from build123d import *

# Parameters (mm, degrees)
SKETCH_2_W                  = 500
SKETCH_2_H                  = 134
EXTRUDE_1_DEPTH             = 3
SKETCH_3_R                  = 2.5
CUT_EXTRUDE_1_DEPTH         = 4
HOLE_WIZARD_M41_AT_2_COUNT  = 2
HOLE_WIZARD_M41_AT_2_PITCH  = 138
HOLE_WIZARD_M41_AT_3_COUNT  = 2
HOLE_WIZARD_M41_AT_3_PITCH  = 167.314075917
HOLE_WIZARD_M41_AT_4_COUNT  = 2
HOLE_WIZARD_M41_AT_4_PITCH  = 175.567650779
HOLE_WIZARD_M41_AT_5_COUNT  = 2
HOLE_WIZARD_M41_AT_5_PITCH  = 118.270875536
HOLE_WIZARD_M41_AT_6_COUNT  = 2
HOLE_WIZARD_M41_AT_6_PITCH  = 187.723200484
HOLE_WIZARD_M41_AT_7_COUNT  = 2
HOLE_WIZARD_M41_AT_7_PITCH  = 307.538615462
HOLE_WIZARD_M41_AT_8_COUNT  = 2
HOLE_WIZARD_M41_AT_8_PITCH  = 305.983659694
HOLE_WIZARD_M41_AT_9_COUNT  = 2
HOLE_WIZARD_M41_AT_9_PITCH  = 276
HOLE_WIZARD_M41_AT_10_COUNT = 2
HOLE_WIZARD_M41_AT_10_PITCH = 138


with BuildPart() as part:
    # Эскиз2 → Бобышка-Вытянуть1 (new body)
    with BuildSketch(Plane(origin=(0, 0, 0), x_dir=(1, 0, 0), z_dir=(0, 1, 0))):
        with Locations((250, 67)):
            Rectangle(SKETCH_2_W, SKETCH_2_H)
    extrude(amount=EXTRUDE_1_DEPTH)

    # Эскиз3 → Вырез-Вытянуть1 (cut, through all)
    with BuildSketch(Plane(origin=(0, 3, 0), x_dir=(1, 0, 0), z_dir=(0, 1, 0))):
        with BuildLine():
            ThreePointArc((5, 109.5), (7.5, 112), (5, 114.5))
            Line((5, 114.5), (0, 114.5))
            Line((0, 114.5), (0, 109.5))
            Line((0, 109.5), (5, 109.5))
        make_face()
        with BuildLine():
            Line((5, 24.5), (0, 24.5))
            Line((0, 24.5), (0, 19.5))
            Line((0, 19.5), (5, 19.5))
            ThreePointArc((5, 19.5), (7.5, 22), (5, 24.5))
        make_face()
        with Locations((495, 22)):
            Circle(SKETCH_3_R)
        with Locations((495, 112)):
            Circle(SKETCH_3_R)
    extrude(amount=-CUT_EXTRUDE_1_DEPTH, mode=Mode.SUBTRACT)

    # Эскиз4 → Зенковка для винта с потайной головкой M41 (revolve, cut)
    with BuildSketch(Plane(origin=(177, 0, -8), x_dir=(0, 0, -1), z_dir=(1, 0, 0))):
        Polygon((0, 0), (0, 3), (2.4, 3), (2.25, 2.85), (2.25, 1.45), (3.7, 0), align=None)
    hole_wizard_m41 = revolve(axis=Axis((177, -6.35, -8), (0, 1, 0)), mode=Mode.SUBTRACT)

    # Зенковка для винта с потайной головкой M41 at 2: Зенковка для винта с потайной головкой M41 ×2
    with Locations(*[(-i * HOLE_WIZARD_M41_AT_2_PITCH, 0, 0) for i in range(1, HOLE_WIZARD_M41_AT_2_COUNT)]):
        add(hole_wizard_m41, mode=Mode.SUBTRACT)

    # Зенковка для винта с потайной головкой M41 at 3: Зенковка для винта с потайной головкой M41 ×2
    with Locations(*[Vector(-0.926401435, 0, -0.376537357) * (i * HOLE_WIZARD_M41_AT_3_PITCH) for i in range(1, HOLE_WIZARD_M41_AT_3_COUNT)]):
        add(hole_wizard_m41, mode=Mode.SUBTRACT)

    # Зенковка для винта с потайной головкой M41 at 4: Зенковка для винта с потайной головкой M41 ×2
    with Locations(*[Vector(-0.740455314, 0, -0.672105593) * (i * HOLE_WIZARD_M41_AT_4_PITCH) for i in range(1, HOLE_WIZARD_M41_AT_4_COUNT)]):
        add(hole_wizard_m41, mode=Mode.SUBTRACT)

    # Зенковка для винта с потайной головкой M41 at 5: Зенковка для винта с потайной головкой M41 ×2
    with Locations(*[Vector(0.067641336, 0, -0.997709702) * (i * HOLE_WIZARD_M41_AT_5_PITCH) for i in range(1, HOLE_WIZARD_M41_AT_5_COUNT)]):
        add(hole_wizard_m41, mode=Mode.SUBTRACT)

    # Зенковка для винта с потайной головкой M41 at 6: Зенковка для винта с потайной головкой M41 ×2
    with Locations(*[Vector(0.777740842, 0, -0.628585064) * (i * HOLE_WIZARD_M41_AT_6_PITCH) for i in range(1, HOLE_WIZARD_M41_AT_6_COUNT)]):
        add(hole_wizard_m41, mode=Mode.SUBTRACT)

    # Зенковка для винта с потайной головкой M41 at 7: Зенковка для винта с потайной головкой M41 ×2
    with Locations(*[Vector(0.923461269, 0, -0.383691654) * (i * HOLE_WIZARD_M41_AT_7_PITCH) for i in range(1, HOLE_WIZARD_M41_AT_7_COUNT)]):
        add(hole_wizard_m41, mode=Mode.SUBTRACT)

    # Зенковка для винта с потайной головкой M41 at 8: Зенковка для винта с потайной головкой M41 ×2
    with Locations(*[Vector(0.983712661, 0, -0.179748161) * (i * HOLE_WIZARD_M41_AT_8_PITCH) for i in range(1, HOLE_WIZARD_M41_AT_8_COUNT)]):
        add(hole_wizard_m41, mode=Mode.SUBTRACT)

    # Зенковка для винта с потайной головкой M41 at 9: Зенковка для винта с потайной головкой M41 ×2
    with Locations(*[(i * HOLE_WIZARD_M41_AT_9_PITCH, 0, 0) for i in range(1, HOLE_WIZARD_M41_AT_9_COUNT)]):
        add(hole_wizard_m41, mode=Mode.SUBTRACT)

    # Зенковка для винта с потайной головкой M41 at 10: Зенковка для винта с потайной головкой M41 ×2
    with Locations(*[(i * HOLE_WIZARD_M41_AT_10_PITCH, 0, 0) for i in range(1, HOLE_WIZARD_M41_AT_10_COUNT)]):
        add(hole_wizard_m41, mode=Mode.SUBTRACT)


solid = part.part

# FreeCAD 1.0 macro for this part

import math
import FreeCAD as App
import Part
import Sketcher
Q = App.Units.Quantity


def add_polygon(sketch, points):
    """Adds a closed chain of lines whose ends are joined by coincident constraints."""
    first, n = sketch.GeometryCount, len(points)
    for a, b in zip(points, points[1:] + points[:1]):
        sketch.addGeometry(Part.LineSegment(App.Vector(*a, 0), App.Vector(*b, 0)), False)
    for i in range(n):
        sketch.addConstraint(Sketcher.Constraint("Coincident", first + i, 2, first + (i + 1) % n, 1))

doc = App.newDocument("Part")
body = doc.addObject("PartDesign::Body", "Body")

sketch1 = doc.addObject("Sketcher::SketchObject", "Sketch")
body.addObject(sketch1)
sketch1.AttachmentSupport = (doc.XZ_Plane, [""])
sketch1.MapMode = "FlatFace"
add_polygon(sketch1, [(0, -134), (0, 0), (500, 0), (500, -134)])
sketch1.addConstraint([
    Sketcher.Constraint("Vertical", 0),
    Sketcher.Constraint("Horizontal", 1),
    Sketcher.Constraint("Vertical", 2),
    Sketcher.Constraint("Horizontal", 3),
    Sketcher.Constraint("Coincident", 0, 2, -1, 1),
    Sketcher.Constraint("DistanceX", 1, 1, 1, 2, Q("500 mm")),
    Sketcher.Constraint("DistanceY", 0, 1, 0, 2, Q("134 mm")),
])
pad1 = doc.addObject("PartDesign::Pad", "Pad")
body.addObject(pad1)
pad1.Profile = sketch1
pad1.Length = 3
pad1.Reversed = True

sketch2 = doc.addObject("Sketcher::SketchObject", "Sketch001")
body.addObject(sketch2)
sketch2.AttachmentSupport = (doc.XZ_Plane, [""])
sketch2.MapMode = "FlatFace"
sketch2.AttachmentOffset = App.Placement(App.Vector(0, 0, -3), App.Rotation())
sketch2.addGeometry([
    Part.ArcOfCircle(Part.Circle(App.Vector(5, -112, 0), App.Vector(0, 0, 1), 2.5), math.radians(-90), math.radians(90)),
    Part.LineSegment(App.Vector(5, -114.5, 0), App.Vector(0, -114.5, 0)),
    Part.LineSegment(App.Vector(0, -114.5, 0), App.Vector(0, -109.5, 0)),
    Part.LineSegment(App.Vector(0, -109.5, 0), App.Vector(5, -109.5, 0)),
    Part.LineSegment(App.Vector(5, -24.5, 0), App.Vector(0, -24.5, 0)),
    Part.LineSegment(App.Vector(0, -24.5, 0), App.Vector(0, -19.5, 0)),
    Part.LineSegment(App.Vector(0, -19.5, 0), App.Vector(5, -19.5, 0)),
    Part.ArcOfCircle(Part.Circle(App.Vector(5, -22, 0), App.Vector(0, 0, 1), 2.5), math.radians(-90), math.radians(90)),
    Part.Circle(App.Vector(495, -22, 0), App.Vector(0, 0, 1), 2.5),
    Part.Circle(App.Vector(495, -112, 0), App.Vector(0, 0, 1), 2.5),
], False)
sketch2.addConstraint([
    Sketcher.Constraint("Tangent", 0, 1, 1, 1),
    Sketcher.Constraint("Coincident", 1, 2, 2, 1),
    Sketcher.Constraint("Coincident", 2, 2, 3, 1),
    Sketcher.Constraint("Tangent", 3, 2, 0, 2),
    Sketcher.Constraint("Coincident", 4, 2, 5, 1),
    Sketcher.Constraint("Coincident", 5, 2, 6, 1),
    Sketcher.Constraint("Tangent", 6, 2, 7, 2),
    Sketcher.Constraint("Tangent", 7, 1, 4, 1),
    Sketcher.Constraint("Horizontal", 1),
    Sketcher.Constraint("Vertical", 2),
    Sketcher.Constraint("Horizontal", 3),
    Sketcher.Constraint("Horizontal", 4),
    Sketcher.Constraint("Vertical", 5),
    Sketcher.Constraint("Horizontal", 6),
    Sketcher.Constraint("Equal", 0, 7),
    Sketcher.Constraint("Equal", 7, 8),
    Sketcher.Constraint("Equal", 8, 9),
    Sketcher.Constraint("PointOnObject", 1, 2, -2),
    Sketcher.Constraint("PointOnObject", 4, 2, -2),
    Sketcher.Constraint("Horizontal", 7, 3, 8, 3),
    Sketcher.Constraint("Horizontal", 0, 3, 9, 3),
    Sketcher.Constraint("Vertical", 0, 3, 7, 3),
    Sketcher.Constraint("Vertical", 8, 3, 9, 3),
    Sketcher.Constraint("Equal", 6, 2),
    Sketcher.Constraint("Diameter", 8, Q("5 mm")),
    Sketcher.Constraint("DistanceY", 0, 3, -1, 1, Q("112 mm")),
    Sketcher.Constraint("DistanceY", 7, 3, -1, 1, Q("22 mm")),
    Sketcher.Constraint("DistanceX", -1, 1, 8, 3, Q("495 mm")),
])
pocket1 = doc.addObject("PartDesign::Pocket", "Pocket")
body.addObject(pocket1)
pocket1.Profile = sketch2
pocket1.Type = "ThroughAll"
pocket1.Reversed = True

sketch3 = doc.addObject("Sketcher::SketchObject", "Sketch002")
body.addObject(sketch3)
sketch3.AttachmentSupport = (doc.YZ_Plane, [""])
sketch3.MapMode = "FlatFace"
sketch3.AttachmentOffset = App.Placement(App.Vector(0, 0, 177), App.Rotation())
add_polygon(sketch3, [(3, -8), (0, -8), (0, -11.7), (1.45, -10.25), (2.85, -10.25), (3, -10.4)])
sketch3.addGeometry(Part.LineSegment(App.Vector(0, -8, 0), App.Vector(3, -8, 0)), True)
sketch3.addConstraint([
    Sketcher.Constraint("Horizontal", 0),
    Sketcher.Constraint("Vertical", 1),
    Sketcher.Constraint("Horizontal", 3),
    Sketcher.Constraint("Vertical", 5),
    Sketcher.Constraint("Horizontal", 6),
    Sketcher.Constraint("Coincident", 6, 1, 0, 2),
    Sketcher.Constraint("PointOnObject", 0, 2, -2),
    Sketcher.Constraint("Perpendicular", 2, 4),
    Sketcher.Constraint("Vertical", 4, 2, 6, 2),
    Sketcher.Constraint("DistanceX", 0, 2, 0, 1, Q("3 mm")),
    Sketcher.Constraint("Angle", 2, Q("45 deg")),
    Sketcher.Constraint("DistanceX", 3, 1, 3, 2, Q("1.4 mm")),
    Sketcher.Constraint("DistanceY", 1, 2, 1, 1, Q("3.7 mm")),
    Sketcher.Constraint("DistanceY", 5, 1, 5, 2, Q("2.4 mm")),
    Sketcher.Constraint("DistanceY", 0, 2, -1, 1, Q("8 mm")),
])
groove = doc.addObject("PartDesign::Groove", "Groove")
body.addObject(groove)
groove.Profile = sketch3
groove.ReferenceAxis = (sketch3, ["Axis0"])
groove.Angle = 360
doc.recompute()

linearpattern = doc.addObject("PartDesign::LinearPattern", "LinearPattern")
body.addObject(linearpattern)
linearpattern.Originals = [groove]
linearpattern.Direction = (doc.X_Axis, [""])
linearpattern.Mode = "offset"
linearpattern.Offset = 138
linearpattern.Occurrences = 2
linearpattern.Reversed = True
body.Tip = linearpattern
doc.recompute()

datumline = doc.addObject("PartDesign::Line", "DatumLine")
body.addObject(datumline)
datumline.Placement = App.Placement(App.Vector(0, 0, 0), App.Rotation(App.Vector(0, 0, 1), App.Vector(-0.926401435, 0, -0.376537357)))
linearpattern2 = doc.addObject("PartDesign::LinearPattern", "LinearPattern001")
body.addObject(linearpattern2)
linearpattern2.Originals = [groove]
linearpattern2.Direction = (datumline, [""])
linearpattern2.Mode = "offset"
linearpattern2.Offset = 167.314076
linearpattern2.Occurrences = 2
body.Tip = linearpattern2
doc.recompute()

datumline2 = doc.addObject("PartDesign::Line", "DatumLine001")
body.addObject(datumline2)
datumline2.Placement = App.Placement(App.Vector(0, 0, 0), App.Rotation(App.Vector(0, 0, 1), App.Vector(-0.740455314, 0, -0.672105593)))
linearpattern3 = doc.addObject("PartDesign::LinearPattern", "LinearPattern002")
body.addObject(linearpattern3)
linearpattern3.Originals = [groove]
linearpattern3.Direction = (datumline2, [""])
linearpattern3.Mode = "offset"
linearpattern3.Offset = 175.567651
linearpattern3.Occurrences = 2
body.Tip = linearpattern3
doc.recompute()

datumline3 = doc.addObject("PartDesign::Line", "DatumLine002")
body.addObject(datumline3)
datumline3.Placement = App.Placement(App.Vector(0, 0, 0), App.Rotation(App.Vector(0, 0, 1), App.Vector(0.067641336, 0, -0.997709702)))
linearpattern4 = doc.addObject("PartDesign::LinearPattern", "LinearPattern003")
body.addObject(linearpattern4)
linearpattern4.Originals = [groove]
linearpattern4.Direction = (datumline3, [""])
linearpattern4.Mode = "offset"
linearpattern4.Offset = 118.270876
linearpattern4.Occurrences = 2
body.Tip = linearpattern4
doc.recompute()

datumline4 = doc.addObject("PartDesign::Line", "DatumLine003")
body.addObject(datumline4)
datumline4.Placement = App.Placement(App.Vector(0, 0, 0), App.Rotation(App.Vector(0, 0, 1), App.Vector(0.777740842, 0, -0.628585064)))
linearpattern5 = doc.addObject("PartDesign::LinearPattern", "LinearPattern004")
body.addObject(linearpattern5)
linearpattern5.Originals = [groove]
linearpattern5.Direction = (datumline4, [""])
linearpattern5.Mode = "offset"
linearpattern5.Offset = 187.7232
linearpattern5.Occurrences = 2
body.Tip = linearpattern5
doc.recompute()

datumline5 = doc.addObject("PartDesign::Line", "DatumLine004")
body.addObject(datumline5)
datumline5.Placement = App.Placement(App.Vector(0, 0, 0), App.Rotation(App.Vector(0, 0, 1), App.Vector(0.923461269, 0, -0.383691654)))
linearpattern6 = doc.addObject("PartDesign::LinearPattern", "LinearPattern005")
body.addObject(linearpattern6)
linearpattern6.Originals = [groove]
linearpattern6.Direction = (datumline5, [""])
linearpattern6.Mode = "offset"
linearpattern6.Offset = 307.538616
linearpattern6.Occurrences = 2
body.Tip = linearpattern6
doc.recompute()

datumline6 = doc.addObject("PartDesign::Line", "DatumLine005")
body.addObject(datumline6)
datumline6.Placement = App.Placement(App.Vector(0, 0, 0), App.Rotation(App.Vector(0, 0, 1), App.Vector(0.983712661, 0, -0.179748161)))
linearpattern7 = doc.addObject("PartDesign::LinearPattern", "LinearPattern006")
body.addObject(linearpattern7)
linearpattern7.Originals = [groove]
linearpattern7.Direction = (datumline6, [""])
linearpattern7.Mode = "offset"
linearpattern7.Offset = 305.98366
linearpattern7.Occurrences = 2
body.Tip = linearpattern7
doc.recompute()

linearpattern8 = doc.addObject("PartDesign::LinearPattern", "LinearPattern007")
body.addObject(linearpattern8)
linearpattern8.Originals = [groove]
linearpattern8.Direction = (doc.X_Axis, [""])
linearpattern8.Mode = "offset"
linearpattern8.Offset = 276
linearpattern8.Occurrences = 2
body.Tip = linearpattern8
doc.recompute()

linearpattern9 = doc.addObject("PartDesign::LinearPattern", "LinearPattern008")
body.addObject(linearpattern9)
linearpattern9.Originals = [groove]
linearpattern9.Direction = (doc.X_Axis, [""])
linearpattern9.Mode = "offset"
linearpattern9.Offset = 138
linearpattern9.Occurrences = 2
body.Tip = linearpattern9

doc.recompute()
